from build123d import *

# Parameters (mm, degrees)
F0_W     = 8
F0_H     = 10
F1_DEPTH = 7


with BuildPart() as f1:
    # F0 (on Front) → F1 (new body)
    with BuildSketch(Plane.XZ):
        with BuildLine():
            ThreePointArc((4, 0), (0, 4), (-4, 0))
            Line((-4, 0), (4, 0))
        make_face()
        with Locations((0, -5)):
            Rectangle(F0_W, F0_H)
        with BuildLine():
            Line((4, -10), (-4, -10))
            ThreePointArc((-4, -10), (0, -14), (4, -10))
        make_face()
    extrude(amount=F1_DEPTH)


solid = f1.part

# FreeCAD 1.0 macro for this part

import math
import FreeCAD as App
import Part
import Sketcher
Q = App.Units.Quantity

doc = App.newDocument("Part")
params = doc.addObject("Spreadsheet::Sheet", "Params")
for row, (alias, value) in enumerate([
    ("sketch1_radius", "4 mm"),
    ("sketch1_height", "10 mm"),
    ("pad1_length", "7 mm"),
], start=1):
    params.set(f"A{row}", alias)
    params.set(f"B{row}", "=" + value)
    params.setAlias(f"B{row}", alias)

body = doc.addObject("PartDesign::Body", "Body")

# Sketch on XZ plane
sketch1 = body.newObject("Sketcher::SketchObject", "Sketch")
sketch1.AttachmentSupport = (doc.getObject("XZ_Plane"), [""])
sketch1.MapMode = "FlatFace"
sketch1.addGeometry([
    Part.ArcOfCircle(Part.Circle(App.Vector(0, 0, 0), App.Vector(0, 0, 1), 4), math.radians(0), math.radians(180)),
    Part.LineSegment(App.Vector(-4, 0, 0), App.Vector(-4, -10, 0)),
    Part.ArcOfCircle(Part.Circle(App.Vector(0, -10, 0), App.Vector(0, 0, 1), 4), math.radians(180), math.radians(360)),
    Part.LineSegment(App.Vector(4, -10, 0), App.Vector(4, 0, 0)),
], False)
sketch1.addConstraint([
    Sketcher.Constraint("Tangent", 0, 2, 1, 1),
    Sketcher.Constraint("Tangent", 1, 2, 2, 1),
    Sketcher.Constraint("Tangent", 2, 2, 3, 1),
    Sketcher.Constraint("Tangent", 3, 2, 0, 1),
    Sketcher.Constraint("Vertical", 1),
    Sketcher.Constraint("Vertical", 3),
    Sketcher.Constraint("Coincident", 0, 3, -1, 1),
    Sketcher.Constraint("Radius", 0, Q("4 mm")),
    Sketcher.Constraint("DistanceY", 1, 2, 1, 1, Q("10 mm")),
])
sketch1.setExpression("Constraints[7]", "Params.sketch1_radius")
sketch1.setExpression("Constraints[8]", "Params.sketch1_height")
pad1 = body.newObject("PartDesign::Pad", "Pad")
pad1.Profile = sketch1
pad1.setExpression("Length", "Params.pad1_length")

doc.recompute()
